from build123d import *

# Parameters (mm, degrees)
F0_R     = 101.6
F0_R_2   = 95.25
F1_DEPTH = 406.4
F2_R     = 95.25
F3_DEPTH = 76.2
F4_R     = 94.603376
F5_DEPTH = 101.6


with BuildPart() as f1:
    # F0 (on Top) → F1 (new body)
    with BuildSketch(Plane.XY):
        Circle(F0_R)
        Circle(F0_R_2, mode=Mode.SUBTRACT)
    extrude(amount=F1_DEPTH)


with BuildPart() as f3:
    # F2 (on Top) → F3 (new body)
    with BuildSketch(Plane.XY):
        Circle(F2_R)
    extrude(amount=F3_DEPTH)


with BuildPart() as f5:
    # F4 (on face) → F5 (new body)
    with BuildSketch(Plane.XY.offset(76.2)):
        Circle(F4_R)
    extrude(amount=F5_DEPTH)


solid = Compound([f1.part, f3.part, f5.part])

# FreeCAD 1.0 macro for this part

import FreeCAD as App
import Part
import Sketcher

V = App.Vector
Q = App.Units.Quantity

doc = App.newDocument("Part")
params = doc.addObject("Spreadsheet::Sheet", "Params")
for row, (alias, value) in enumerate([
    ("sketch1_diameter", "8 in"),
    ("sketch1_diameter2", "7.5 in"),
    ("pad1_length", "16 in"),
    ("sketch2_diameter", "7.5 in"),
    ("pad2_length", "3 in"),
    ("pad3_length", "4 in"),
], start=1):
    params.set(f"A{row}", alias)
    params.set(f"B{row}", "=" + value)
    params.setAlias(f"B{row}", alias)

body = doc.addObject("PartDesign::Body", "Body")

# Sketch on XY plane
sketch1 = doc.addObject("Sketcher::SketchObject", "Sketch")
body.addObject(sketch1)
sketch1.AttachmentSupport = (doc.XY_Plane, [""])
sketch1.MapMode = "FlatFace"
sketch1.addGeometry([
    Part.Circle(V(0, 0, 0), V(0, 0, 1), 102),
    Part.Circle(V(0, 0, 0), V(0, 0, 1), 95),
], False)
sketch1.addConstraint([
    Sketcher.Constraint("Coincident", 0, 3, -1, 1),
    Sketcher.Constraint("Coincident", 1, 3, -1, 1),
    Sketcher.Constraint("Diameter", 0, Q("8 in")),
    Sketcher.Constraint("Diameter", 1, Q("7.5 in")),
])
sketch1.setExpression("Constraints[2]", "Params.sketch1_diameter")
sketch1.setExpression("Constraints[3]", "Params.sketch1_diameter2")
pad1 = doc.addObject("PartDesign::Pad", "Pad")
body.addObject(pad1)
pad1.Profile = sketch1
pad1.setExpression("Length", "Params.pad1_length")
body2 = doc.addObject("PartDesign::Body", "Body001")

# Sketch on XY plane
sketch2 = doc.addObject("Sketcher::SketchObject", "Sketch001")
body2.addObject(sketch2)
sketch2.AttachmentSupport = (doc.getObject("XY_Plane001"), [""])
sketch2.MapMode = "FlatFace"
sketch2.addGeometry(Part.Circle(V(0, 0, 0), V(0, 0, 1), 95), False)
sketch2.addConstraint([
    Sketcher.Constraint("Coincident", 0, 3, -1, 1),
    Sketcher.Constraint("Diameter", 0, Q("7.5 in")),
])
sketch2.setExpression("Constraints[1]", "Params.sketch2_diameter")
pad2 = doc.addObject("PartDesign::Pad", "Pad001")
body2.addObject(pad2)
pad2.Profile = sketch2
pad2.setExpression("Length", "Params.pad2_length")
body3 = doc.addObject("PartDesign::Body", "Body002")

# Sketch on XY plane
sketch3 = doc.addObject("Sketcher::SketchObject", "Sketch002")
body3.addObject(sketch3)
sketch3.AttachmentSupport = (doc.getObject("XY_Plane002"), [""])
sketch3.MapMode = "FlatFace"
sketch3.AttachmentOffset = App.Placement(V(0, 0, 3 * 25.4), App.Rotation())
sketch3.addGeometry(Part.Circle(V(0, 0, 0), V(0, 0, 1), 95), False)
sketch3.addConstraint([
    Sketcher.Constraint("Coincident", 0, 3, -1, 1),
    Sketcher.Constraint("Diameter", 0, 189.206752),
])
pad3 = doc.addObject("PartDesign::Pad", "Pad002")
body3.addObject(pad3)
pad3.Profile = sketch3
pad3.setExpression("Length", "Params.pad3_length")

doc.recompute()
